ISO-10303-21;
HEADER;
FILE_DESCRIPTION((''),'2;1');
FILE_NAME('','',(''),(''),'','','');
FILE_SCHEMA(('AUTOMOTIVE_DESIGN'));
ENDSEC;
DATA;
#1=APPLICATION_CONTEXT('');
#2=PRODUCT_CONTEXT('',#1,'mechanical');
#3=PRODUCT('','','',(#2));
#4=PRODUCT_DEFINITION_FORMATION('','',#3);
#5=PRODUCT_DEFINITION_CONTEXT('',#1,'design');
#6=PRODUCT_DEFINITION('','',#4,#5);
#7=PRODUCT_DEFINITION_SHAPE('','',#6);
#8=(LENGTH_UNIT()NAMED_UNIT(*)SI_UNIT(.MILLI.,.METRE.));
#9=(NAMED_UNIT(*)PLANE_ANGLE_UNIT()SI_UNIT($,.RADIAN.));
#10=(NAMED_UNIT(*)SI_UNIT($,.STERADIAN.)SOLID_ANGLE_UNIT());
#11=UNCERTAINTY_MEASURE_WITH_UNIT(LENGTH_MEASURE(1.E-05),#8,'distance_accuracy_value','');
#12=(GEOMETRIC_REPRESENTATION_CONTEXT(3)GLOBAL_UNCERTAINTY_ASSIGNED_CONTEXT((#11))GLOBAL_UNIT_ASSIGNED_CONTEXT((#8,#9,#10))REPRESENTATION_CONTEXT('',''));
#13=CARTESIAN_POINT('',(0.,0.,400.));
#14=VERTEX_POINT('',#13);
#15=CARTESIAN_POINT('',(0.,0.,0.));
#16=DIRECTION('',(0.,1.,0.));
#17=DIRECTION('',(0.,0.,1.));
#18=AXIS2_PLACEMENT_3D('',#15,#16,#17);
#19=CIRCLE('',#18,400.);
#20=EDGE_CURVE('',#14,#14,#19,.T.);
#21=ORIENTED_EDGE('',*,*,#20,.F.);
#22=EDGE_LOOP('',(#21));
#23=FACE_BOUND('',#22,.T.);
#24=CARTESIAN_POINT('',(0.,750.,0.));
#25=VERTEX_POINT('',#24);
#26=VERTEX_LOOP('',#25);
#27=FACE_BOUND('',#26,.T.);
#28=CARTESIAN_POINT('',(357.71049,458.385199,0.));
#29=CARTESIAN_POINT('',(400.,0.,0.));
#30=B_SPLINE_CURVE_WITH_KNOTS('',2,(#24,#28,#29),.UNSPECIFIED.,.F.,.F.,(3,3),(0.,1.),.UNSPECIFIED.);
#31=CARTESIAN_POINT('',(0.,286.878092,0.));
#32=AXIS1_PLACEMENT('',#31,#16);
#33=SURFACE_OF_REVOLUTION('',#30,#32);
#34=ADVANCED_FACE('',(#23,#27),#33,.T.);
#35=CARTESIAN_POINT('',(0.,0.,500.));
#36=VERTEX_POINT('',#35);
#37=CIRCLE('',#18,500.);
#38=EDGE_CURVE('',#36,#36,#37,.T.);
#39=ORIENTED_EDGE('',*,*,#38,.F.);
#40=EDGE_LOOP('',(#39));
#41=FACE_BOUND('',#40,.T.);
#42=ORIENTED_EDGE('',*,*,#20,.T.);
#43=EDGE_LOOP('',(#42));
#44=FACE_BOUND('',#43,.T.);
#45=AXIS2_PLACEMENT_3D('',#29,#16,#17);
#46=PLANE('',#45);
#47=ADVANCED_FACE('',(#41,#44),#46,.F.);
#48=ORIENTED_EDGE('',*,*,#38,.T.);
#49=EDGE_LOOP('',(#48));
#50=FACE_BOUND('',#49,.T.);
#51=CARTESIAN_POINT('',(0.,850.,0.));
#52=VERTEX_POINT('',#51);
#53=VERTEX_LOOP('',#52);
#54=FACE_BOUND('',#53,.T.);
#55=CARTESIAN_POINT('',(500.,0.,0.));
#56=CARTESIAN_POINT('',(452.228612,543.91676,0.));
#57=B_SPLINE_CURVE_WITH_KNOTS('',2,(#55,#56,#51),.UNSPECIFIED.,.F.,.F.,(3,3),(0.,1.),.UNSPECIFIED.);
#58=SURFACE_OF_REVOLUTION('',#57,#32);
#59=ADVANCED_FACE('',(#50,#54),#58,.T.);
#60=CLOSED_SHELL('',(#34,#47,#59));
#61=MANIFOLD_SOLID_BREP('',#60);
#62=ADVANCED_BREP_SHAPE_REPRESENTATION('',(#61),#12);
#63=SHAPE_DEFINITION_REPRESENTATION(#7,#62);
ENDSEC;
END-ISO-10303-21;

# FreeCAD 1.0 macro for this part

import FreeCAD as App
import Part
import Sketcher

doc = App.newDocument("Part")
params = doc.addObject("Spreadsheet::Sheet", "Params")
for row, (alias, value) in enumerate([
    ("revolution_angle", "360 deg"),
], start=1):
    params.set(f"A{row}", alias)
    params.set(f"B{row}", "=" + value)
    params.setAlias(f"B{row}", alias)

body = doc.addObject("PartDesign::Body", "Body")

# Sketch on XY plane
sketch1 = doc.addObject("Sketcher::SketchObject", "Sketch")
body.addObject(sketch1)
sketch1.AttachmentSupport = (doc.XY_Plane, [""])
sketch1.MapMode = "FlatFace"
sketch1.addGeometry([
    Part.LineSegment(App.Vector(400, 0, 0), App.Vector(500, 0, 0)),
    Part.BSplineCurve([App.Vector(0, 850, 0), App.Vector(452.228612, 543.91676, 0), App.Vector(500, 0, 0)], [3, 3], [0, 1], False, 2, [1, 1, 1], False),
    Part.LineSegment(App.Vector(0, 850, 0), App.Vector(0, 750, 0)),
    Part.BSplineCurve([App.Vector(0, 750, 0), App.Vector(357.71049, 458.385199, 0), App.Vector(400, 0, 0)], [3, 3], [0, 1], False, 2, [1, 1, 1], False),
], False)
sketch1.addConstraint([
    Sketcher.Constraint("Block", 1),
    Sketcher.Constraint("Block", 3),
    Sketcher.Constraint("Coincident", 0, 2, 1, 2),
    Sketcher.Constraint("Coincident", 1, 1, 2, 1),
    Sketcher.Constraint("Coincident", 2, 2, 3, 1),
    Sketcher.Constraint("Coincident", 3, 2, 0, 1),
])
revolution = doc.addObject("PartDesign::Revolution", "Revolution")
body.addObject(revolution)
revolution.Profile = sketch1
revolution.ReferenceAxis = (sketch1, ["V_Axis"])
revolution.setExpression("Angle", "Params.revolution_angle")

doc.recompute()
